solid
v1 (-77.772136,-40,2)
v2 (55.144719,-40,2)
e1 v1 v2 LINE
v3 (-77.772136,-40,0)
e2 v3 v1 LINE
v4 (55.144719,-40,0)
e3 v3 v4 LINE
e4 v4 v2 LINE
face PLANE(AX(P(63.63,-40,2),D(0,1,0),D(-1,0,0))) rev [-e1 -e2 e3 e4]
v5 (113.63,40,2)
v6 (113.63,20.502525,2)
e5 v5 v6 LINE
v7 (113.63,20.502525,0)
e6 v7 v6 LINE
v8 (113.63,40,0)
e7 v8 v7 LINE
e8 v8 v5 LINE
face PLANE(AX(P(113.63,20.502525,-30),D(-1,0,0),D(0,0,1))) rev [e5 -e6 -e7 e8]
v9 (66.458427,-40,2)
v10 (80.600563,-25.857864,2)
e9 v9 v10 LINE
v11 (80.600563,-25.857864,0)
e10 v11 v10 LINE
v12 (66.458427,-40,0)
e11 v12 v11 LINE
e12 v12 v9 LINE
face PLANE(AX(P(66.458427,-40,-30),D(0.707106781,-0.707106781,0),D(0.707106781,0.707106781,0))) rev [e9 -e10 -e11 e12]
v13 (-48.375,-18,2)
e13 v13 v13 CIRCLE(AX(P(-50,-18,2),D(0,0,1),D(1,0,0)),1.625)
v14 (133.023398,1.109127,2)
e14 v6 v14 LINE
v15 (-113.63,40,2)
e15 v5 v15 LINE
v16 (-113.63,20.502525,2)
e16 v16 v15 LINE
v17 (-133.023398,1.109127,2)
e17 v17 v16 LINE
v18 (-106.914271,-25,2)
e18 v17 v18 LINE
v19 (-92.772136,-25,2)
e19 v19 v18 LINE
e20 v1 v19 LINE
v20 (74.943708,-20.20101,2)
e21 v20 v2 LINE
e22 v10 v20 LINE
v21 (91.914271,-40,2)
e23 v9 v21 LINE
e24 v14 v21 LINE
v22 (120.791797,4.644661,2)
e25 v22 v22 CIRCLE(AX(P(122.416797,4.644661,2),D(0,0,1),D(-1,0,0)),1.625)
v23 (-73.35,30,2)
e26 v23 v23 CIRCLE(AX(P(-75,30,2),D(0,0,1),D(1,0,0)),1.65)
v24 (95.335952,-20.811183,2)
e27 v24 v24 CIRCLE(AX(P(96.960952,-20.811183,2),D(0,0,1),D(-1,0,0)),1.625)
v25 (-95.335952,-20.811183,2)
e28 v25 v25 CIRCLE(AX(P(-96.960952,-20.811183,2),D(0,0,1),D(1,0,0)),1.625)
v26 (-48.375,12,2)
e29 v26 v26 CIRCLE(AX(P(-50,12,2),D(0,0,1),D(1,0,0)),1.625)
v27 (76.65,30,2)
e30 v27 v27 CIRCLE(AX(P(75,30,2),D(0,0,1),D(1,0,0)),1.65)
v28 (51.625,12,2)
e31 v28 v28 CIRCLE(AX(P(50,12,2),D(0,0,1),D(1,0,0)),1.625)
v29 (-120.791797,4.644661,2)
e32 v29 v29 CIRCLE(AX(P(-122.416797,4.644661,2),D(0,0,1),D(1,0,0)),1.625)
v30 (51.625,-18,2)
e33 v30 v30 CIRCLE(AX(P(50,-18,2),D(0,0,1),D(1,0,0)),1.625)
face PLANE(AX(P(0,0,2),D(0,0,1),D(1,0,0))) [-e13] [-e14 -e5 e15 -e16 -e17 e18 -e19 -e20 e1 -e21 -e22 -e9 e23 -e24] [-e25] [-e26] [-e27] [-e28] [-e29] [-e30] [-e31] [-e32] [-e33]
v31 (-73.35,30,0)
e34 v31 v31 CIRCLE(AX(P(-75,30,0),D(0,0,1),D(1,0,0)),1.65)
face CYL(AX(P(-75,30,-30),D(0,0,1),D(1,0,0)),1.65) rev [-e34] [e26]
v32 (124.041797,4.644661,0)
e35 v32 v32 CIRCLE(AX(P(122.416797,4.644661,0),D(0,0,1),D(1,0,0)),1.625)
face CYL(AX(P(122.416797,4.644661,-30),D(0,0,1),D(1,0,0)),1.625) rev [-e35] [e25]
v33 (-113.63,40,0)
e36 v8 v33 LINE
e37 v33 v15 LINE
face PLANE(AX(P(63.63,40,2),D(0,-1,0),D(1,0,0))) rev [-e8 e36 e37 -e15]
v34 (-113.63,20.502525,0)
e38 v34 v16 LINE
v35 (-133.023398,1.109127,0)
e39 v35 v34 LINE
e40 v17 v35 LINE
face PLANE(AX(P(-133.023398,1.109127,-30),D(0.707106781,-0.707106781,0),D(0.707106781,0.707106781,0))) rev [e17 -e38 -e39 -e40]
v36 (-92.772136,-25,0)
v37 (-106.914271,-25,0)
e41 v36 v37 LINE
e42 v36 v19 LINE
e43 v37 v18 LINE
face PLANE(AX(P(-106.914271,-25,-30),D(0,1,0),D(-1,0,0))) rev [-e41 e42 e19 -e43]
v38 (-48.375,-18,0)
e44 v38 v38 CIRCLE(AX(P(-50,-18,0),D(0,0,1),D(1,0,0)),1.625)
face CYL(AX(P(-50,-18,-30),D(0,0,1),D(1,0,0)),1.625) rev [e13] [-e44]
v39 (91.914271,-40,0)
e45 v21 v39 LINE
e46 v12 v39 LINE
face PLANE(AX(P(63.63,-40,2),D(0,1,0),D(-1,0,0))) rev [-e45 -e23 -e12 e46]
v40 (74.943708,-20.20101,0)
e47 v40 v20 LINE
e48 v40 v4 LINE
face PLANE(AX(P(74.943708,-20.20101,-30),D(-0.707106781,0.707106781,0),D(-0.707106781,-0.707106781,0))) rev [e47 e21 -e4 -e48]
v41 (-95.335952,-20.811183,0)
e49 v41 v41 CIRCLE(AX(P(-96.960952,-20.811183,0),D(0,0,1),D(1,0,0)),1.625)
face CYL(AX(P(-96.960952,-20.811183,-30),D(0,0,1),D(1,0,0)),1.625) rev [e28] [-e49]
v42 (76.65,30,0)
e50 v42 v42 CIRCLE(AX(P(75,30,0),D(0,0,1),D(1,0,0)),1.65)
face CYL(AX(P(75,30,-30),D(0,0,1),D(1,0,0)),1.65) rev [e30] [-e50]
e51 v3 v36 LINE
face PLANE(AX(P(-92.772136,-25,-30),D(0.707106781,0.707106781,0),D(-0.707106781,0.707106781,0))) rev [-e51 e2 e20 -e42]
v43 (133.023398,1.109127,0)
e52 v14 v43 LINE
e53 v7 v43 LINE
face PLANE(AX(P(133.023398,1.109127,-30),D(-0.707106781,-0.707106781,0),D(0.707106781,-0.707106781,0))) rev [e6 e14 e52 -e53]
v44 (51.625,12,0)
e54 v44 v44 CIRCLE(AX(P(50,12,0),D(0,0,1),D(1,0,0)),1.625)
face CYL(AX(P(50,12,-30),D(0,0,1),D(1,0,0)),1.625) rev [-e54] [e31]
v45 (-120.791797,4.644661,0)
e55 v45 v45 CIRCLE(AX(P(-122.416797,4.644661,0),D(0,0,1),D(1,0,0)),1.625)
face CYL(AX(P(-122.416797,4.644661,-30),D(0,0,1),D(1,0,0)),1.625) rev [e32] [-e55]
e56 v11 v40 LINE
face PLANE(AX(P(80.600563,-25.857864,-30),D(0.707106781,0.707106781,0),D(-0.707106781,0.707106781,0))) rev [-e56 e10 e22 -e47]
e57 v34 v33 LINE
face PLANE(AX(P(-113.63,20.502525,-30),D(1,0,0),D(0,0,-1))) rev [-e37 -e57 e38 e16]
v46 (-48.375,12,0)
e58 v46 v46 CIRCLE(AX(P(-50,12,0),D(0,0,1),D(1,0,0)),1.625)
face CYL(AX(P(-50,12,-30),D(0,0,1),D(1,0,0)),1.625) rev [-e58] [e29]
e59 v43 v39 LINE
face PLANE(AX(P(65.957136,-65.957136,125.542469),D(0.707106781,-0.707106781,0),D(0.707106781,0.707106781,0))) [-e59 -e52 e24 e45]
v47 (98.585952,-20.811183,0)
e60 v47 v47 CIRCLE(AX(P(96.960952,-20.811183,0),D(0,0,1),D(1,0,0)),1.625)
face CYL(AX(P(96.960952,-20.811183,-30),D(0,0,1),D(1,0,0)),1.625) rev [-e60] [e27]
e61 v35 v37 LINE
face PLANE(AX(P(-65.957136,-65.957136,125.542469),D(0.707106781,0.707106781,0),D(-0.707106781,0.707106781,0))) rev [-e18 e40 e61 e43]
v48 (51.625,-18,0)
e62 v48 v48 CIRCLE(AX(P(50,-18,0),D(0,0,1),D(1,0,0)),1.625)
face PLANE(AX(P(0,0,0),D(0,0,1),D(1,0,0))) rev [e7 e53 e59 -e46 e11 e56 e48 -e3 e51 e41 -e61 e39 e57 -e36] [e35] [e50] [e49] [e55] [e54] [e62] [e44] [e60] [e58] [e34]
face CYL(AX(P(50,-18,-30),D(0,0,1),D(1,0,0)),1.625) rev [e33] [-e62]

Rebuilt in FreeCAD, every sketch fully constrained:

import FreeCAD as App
import Part
import Sketcher
from FreeCAD import Vector
Q = App.Units.Quantity

doc = App.newDocument("Part")
body = doc.addObject("PartDesign::Body", "Body")

# Sketch on XY plane
sketch1 = body.newObject("Sketcher::SketchObject", "Sketch")
sketch1.AttachmentSupport = (doc.getObject("XY_Plane"), [""])
sketch1.MapMode = "FlatFace"
sketch1.addGeometry([
    Part.LineSegment(Vector(-64, 40, 0), Vector(-64, -40, 0)),
    Part.LineSegment(Vector(-64, -40, 0), Vector(64, -40, 0)),
    Part.LineSegment(Vector(64, -40, 0), Vector(64, 40, 0)),
    Part.LineSegment(Vector(64, 40, 0), Vector(-64, 40, 0)),
], False)
sketch1.addConstraint([
    Sketcher.Constraint("Coincident", 0, 2, 1, 1),
    Sketcher.Constraint("Coincident", 1, 2, 2, 1),
    Sketcher.Constraint("Coincident", 2, 2, 3, 1),
    Sketcher.Constraint("Coincident", 3, 2, 0, 1),
    Sketcher.Constraint("Vertical", 0),
    Sketcher.Constraint("Horizontal", 1),
    Sketcher.Constraint("Vertical", 2),
    Sketcher.Constraint("Horizontal", 3),
    Sketcher.Constraint("Symmetric", 0, 2, 2, 2, -1, 1),
    Sketcher.Constraint("DistanceY", 0, 2, 0, 1, Q("80 mm")),
    Sketcher.Constraint("DistanceX", 1, 1, 1, 2, Q("127.26 mm")),
])
pad1 = body.newObject("PartDesign::Pad", "Pad")
pad1.Profile = sketch1
pad1.Length = 2

# Sketch on XY plane
sketch2 = body.newObject("Sketcher::SketchObject", "Sketch001")
sketch2.AttachmentSupport = (doc.getObject("XY_Plane"), [""])
sketch2.MapMode = "FlatFace"
sketch2.addGeometry([
    Part.LineSegment(Vector(-144, 40, 0), Vector(-64, 40, 0)),  # 0
    Part.LineSegment(Vector(-64, 40, 0), Vector(-64, -40, 0)),  # 1
    Part.LineSegment(Vector(-64, -40, 0), Vector(-92, -40, 0)),  # 2
    Part.LineSegment(Vector(-92, -40, 0), Vector(-158, 26, 0)),  # 3
    Part.LineSegment(Vector(-158, 26, 0), Vector(-144, 40, 0)),  # 4
    Part.LineSegment(Vector(64, -40, 0), Vector(64, 40, 0)),  # 5
    Part.LineSegment(Vector(64, 40, 0), Vector(144, 40, 0)),  # 6
    Part.LineSegment(Vector(144, 40, 0), Vector(158, 26, 0)),  # 7
    Part.LineSegment(Vector(158, 26, 0), Vector(92, -40, 0)),  # 8
    Part.LineSegment(Vector(92, -40, 0), Vector(64, -40, 0)),  # 9
], False)
sketch2.addConstraint([
    Sketcher.Constraint("Coincident", 0, 2, 1, 1),
    Sketcher.Constraint("Coincident", 1, 2, 2, 1),
    Sketcher.Constraint("Coincident", 2, 2, 3, 1),
    Sketcher.Constraint("Coincident", 3, 2, 4, 1),
    Sketcher.Constraint("Coincident", 4, 2, 0, 1),
    Sketcher.Constraint("Coincident", 5, 2, 6, 1),
    Sketcher.Constraint("Coincident", 6, 2, 7, 1),
    Sketcher.Constraint("Coincident", 7, 2, 8, 1),
    Sketcher.Constraint("Coincident", 8, 2, 9, 1),
    Sketcher.Constraint("Coincident", 9, 2, 5, 1),
    Sketcher.Constraint("Horizontal", 0),
    Sketcher.Constraint("Vertical", 1),
    Sketcher.Constraint("Horizontal", 2),
    Sketcher.Constraint("Vertical", 5),
    Sketcher.Constraint("Horizontal", 6),
    Sketcher.Constraint("Horizontal", 9),
    Sketcher.Constraint("Symmetric", 1, 2, 5, 2, -1, 1),
    Sketcher.Constraint("Symmetric", 4, 2, 6, 2, -2),
    Sketcher.Constraint("Symmetric", 3, 2, 7, 2, -2),
    Sketcher.Constraint("Symmetric", 2, 2, 8, 2, -2),
    Sketcher.Constraint("Perpendicular", 3, 4),
    Sketcher.Constraint("Perpendicular", 4, 7),
    Sketcher.Constraint("Equal", 6, 1),
    Sketcher.Constraint("DistanceX", 0, 1, 0, 2, Q("80 mm")),
    Sketcher.Constraint("Distance", 4, Q("20 mm")),
    Sketcher.Constraint("DistanceX", 0, 2, -1, 1, Q("63.63 mm")),
])
pad2 = body.newObject("PartDesign::Pad", "Pad001")
pad2.Profile = sketch2
pad2.Length = 2

# Sketch on XY plane
sketch3 = body.newObject("Sketcher::SketchObject", "Sketch002")
sketch3.AttachmentSupport = (doc.getObject("XY_Plane"), [""])
sketch3.MapMode = "FlatFace"
sketch3.AttachmentOffset = App.Placement(Vector(0, 0, 2), App.Rotation())
sketch3.addGeometry([
    Part.Circle(Vector(-50, 12, 0), Vector(0, 0, 1), 1.6),  # 0
    Part.Circle(Vector(-50, -18, 0), Vector(0, 0, 1), 1.6),  # 1
    Part.Circle(Vector(50, 12, 0), Vector(0, 0, 1), 1.6),  # 2
    Part.Circle(Vector(50, -18, 0), Vector(0, 0, 1), 1.6),  # 3
    Part.Circle(Vector(-122.4, 4.6, 0), Vector(0, 0, 1), 1.6),  # 4
    Part.Circle(Vector(-97, -20.8, 0), Vector(0, 0, 1), 1.6),  # 5
    Part.Circle(Vector(97, -20.8, 0), Vector(0, 0, 1), 1.6),  # 6
    Part.Circle(Vector(122.4, 4.6, 0), Vector(0, 0, 1), 1.6),  # 7
    Part.Circle(Vector(-75, 30, 0), Vector(0, 0, 1), 1.6),  # 8
    Part.Circle(Vector(75, 30, 0), Vector(0, 0, 1), 1.6),  # 9
    Part.LineSegment(Vector(80.6, -25.9, 0), Vector(74.9, -20.2, 0)),  # 10
    Part.LineSegment(Vector(74.9, -20.2, 0), Vector(55.1, -40, 0)),  # 11
    Part.LineSegment(Vector(55.1, -40, 0), Vector(66.5, -40, 0)),  # 12
    Part.LineSegment(Vector(66.5, -40, 0), Vector(80.6, -25.9, 0)),  # 13
    Part.LineSegment(Vector(-92.8, -25, 0), Vector(-106.9, -25, 0)),  # 14
    Part.LineSegment(Vector(-106.9, -25, 0), Vector(-106.9, -40, 0)),  # 15
    Part.LineSegment(Vector(-106.9, -40, 0), Vector(-77.8, -40, 0)),  # 16
    Part.LineSegment(Vector(-77.8, -40, 0), Vector(-92.8, -25, 0)),  # 17
    Part.LineSegment(Vector(-133, 1.1, 0), Vector(-113.6, 20.5, 0)),  # 18
    Part.LineSegment(Vector(-113.6, 20.5, 0), Vector(-113.6, 40, 0)),  # 19
    Part.LineSegment(Vector(-113.6, 40, 0), Vector(-143.6, 40, 0)),  # 20
    Part.LineSegment(Vector(-143.6, 40, 0), Vector(-157.8, 25.9, 0)),  # 21
    Part.LineSegment(Vector(-157.8, 25.9, 0), Vector(-133, 1.1, 0)),  # 22
    Part.LineSegment(Vector(133, 1.1, 0), Vector(157.8, 25.9, 0)),  # 23
    Part.LineSegment(Vector(157.8, 25.9, 0), Vector(143.6, 40, 0)),  # 24
    Part.LineSegment(Vector(143.6, 40, 0), Vector(113.6, 40, 0)),  # 25
    Part.LineSegment(Vector(113.6, 40, 0), Vector(113.6, 20.5, 0)),  # 26
    Part.LineSegment(Vector(113.6, 20.5, 0), Vector(133, 1.1, 0)),  # 27
], False)
sketch3.addConstraint([
    Sketcher.Constraint("Coincident", 10, 2, 11, 1),
    Sketcher.Constraint("Coincident", 11, 2, 12, 1),
    Sketcher.Constraint("Coincident", 12, 2, 13, 1),
    Sketcher.Constraint("Coincident", 13, 2, 10, 1),
    Sketcher.Constraint("Coincident", 14, 2, 15, 1),
    Sketcher.Constraint("Coincident", 15, 2, 16, 1),
    Sketcher.Constraint("Coincident", 16, 2, 17, 1),
    Sketcher.Constraint("Coincident", 17, 2, 14, 1),
    Sketcher.Constraint("Coincident", 18, 2, 19, 1),
    Sketcher.Constraint("Coincident", 19, 2, 20, 1),
    Sketcher.Constraint("Coincident", 20, 2, 21, 1),
    Sketcher.Constraint("Coincident", 21, 2, 22, 1),
    Sketcher.Constraint("Coincident", 22, 2, 18, 1),
    Sketcher.Constraint("Coincident", 23, 2, 24, 1),
    Sketcher.Constraint("Coincident", 24, 2, 25, 1),
    Sketcher.Constraint("Coincident", 25, 2, 26, 1),
    Sketcher.Constraint("Coincident", 26, 2, 27, 1),
    Sketcher.Constraint("Coincident", 27, 2, 23, 1),
    Sketcher.Constraint("Horizontal", 12),
    Sketcher.Constraint("Horizontal", 14),
    Sketcher.Constraint("Vertical", 15),
    Sketcher.Constraint("Horizontal", 16),
    Sketcher.Constraint("Vertical", 19),
    Sketcher.Constraint("Horizontal", 20),
    Sketcher.Constraint("Horizontal", 25),
    Sketcher.Constraint("Vertical", 26),
    Sketcher.Constraint("Equal", 0, 1),
    Sketcher.Constraint("Equal", 1, 2),
    Sketcher.Constraint("Equal", 2, 3),
    Sketcher.Constraint("Equal", 3, 4),
    Sketcher.Constraint("Equal", 4, 5),
    Sketcher.Constraint("Equal", 5, 6),
    Sketcher.Constraint("Equal", 6, 7),
    Sketcher.Constraint("Equal", 8, 9),
    Sketcher.Constraint("Symmetric", 0, 3, 2, 3, -2),
    Sketcher.Constraint("Symmetric", 1, 3, 3, 3, -2),
    Sketcher.Constraint("Symmetric", 5, 3, 6, 3, -2),
    Sketcher.Constraint("Symmetric", 4, 3, 7, 3, -2),
    Sketcher.Constraint("Symmetric", 8, 3, 9, 3, -2),
    Sketcher.Constraint("Symmetric", 21, 2, 23, 2, -2),
    Sketcher.Constraint("Symmetric", 20, 2, 24, 2, -2),
    Sketcher.Constraint("Symmetric", 18, 2, 26, 2, -2),
    Sketcher.Constraint("Symmetric", 22, 2, 27, 2, -2),
    Sketcher.Constraint("Perpendicular", 10, 11),
    Sketcher.Constraint("Parallel", 11, 13),
    Sketcher.Constraint("Perpendicular", 13, 17),
    Sketcher.Constraint("Perpendicular", 17, 18),
    Sketcher.Constraint("Parallel", 18, 21),
    Sketcher.Constraint("Perpendicular", 21, 22),
    Sketcher.Constraint("Perpendicular", 22, 23),
    Sketcher.Constraint("Horizontal", 12, 2, 15, 2),
    Sketcher.Constraint("Vertical", 0, 3, 1, 3),
    Sketcher.Constraint("Equal", 13, 21),
    Sketcher.Constraint("Diameter", 8, Q("3.3 mm")),
    Sketcher.Constraint("Diameter", 0, Q("3.25 mm")),
    Sketcher.Constraint("DistanceX", 20, 2, 20, 1, Q("30 mm")),
    Sketcher.Constraint("DistanceY", 15, 2, 15, 1, Q("15 mm")),
    Sketcher.Constraint("Distance", 10, Q("8 mm")),
    Sketcher.Constraint("Distance", 11, Q("28 mm")),
    Sketcher.Constraint("Distance", 22, Q("35 mm")),
    Sketcher.Constraint("DistanceX", 0, 3, -1, 1, Q("50 mm")),
    Sketcher.Constraint("DistanceY", -1, 1, 0, 3, Q("12 mm")),
    Sketcher.Constraint("DistanceY", 1, 3, -1, 1, Q("18 mm")),
    Sketcher.Constraint("DistanceX", 8, 3, -1, 1, Q("75 mm")),
    Sketcher.Constraint("DistanceY", -1, 1, 8, 3, Q("30 mm")),
    Sketcher.Constraint("DistanceY", 11, 2, -1, 1, Q("40 mm")),
    Sketcher.Constraint("DistanceY", -1, 1, 19, 2, Q("40 mm")),
    Sketcher.Constraint("DistanceX", 18, 2, -1, 1, Q("113.63 mm")),
    Sketcher.Constraint("DistanceX", 22, 2, 4, 3, Q("10.606602 mm")),
    Sketcher.Constraint("DistanceX", 14, 2, 14, 1, Q("14.142136 mm")),
    Sketcher.Constraint("DistanceY", -1, 1, 4, 3, Q("4.644661 mm")),
    Sketcher.Constraint("DistanceX", -1, 1, 10, 2, Q("74.943708 mm")),
    Sketcher.Constraint("DistanceX", 14, 2, -1, 1, Q("106.914271 mm")),
    Sketcher.Constraint("DistanceX", 13, 2, 6, 3, Q("16.36039 mm")),
    Sketcher.Constraint("DistanceY", 13, 2, 6, 3, Q("5.046681 mm")),
])
pocket1 = body.newObject("PartDesign::Pocket", "Pocket")
pocket1.Profile = sketch3
pocket1.Length = 32

doc.recompute()
